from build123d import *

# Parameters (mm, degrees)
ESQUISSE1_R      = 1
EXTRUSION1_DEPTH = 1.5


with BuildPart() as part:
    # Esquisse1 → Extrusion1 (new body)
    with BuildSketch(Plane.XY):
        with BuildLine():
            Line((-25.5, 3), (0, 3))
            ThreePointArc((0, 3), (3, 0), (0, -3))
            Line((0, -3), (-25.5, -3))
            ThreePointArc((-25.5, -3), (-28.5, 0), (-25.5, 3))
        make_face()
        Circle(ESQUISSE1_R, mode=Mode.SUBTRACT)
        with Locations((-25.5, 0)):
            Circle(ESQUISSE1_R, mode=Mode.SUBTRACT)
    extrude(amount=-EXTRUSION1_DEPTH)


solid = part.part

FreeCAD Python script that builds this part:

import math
import FreeCAD as App
import Part
import Sketcher
from FreeCAD import Vector

doc = App.newDocument("Part")
body = doc.addObject("PartDesign::Body", "Body")

sketch1 = body.newObject("Sketcher::SketchObject", "Sketch")
sketch1.AttachmentSupport = (doc.getObject("XY_Plane"), [""])
sketch1.MapMode = "FlatFace"
sketch1.addGeometry(Part.LineSegment(Vector(0, 3, 0), Vector(-25.5, 3, 0)), False)
sketch1.addGeometry(Part.ArcOfCircle(Part.Circle(Vector(-25.5, 0, 0), Vector(0, 0, 1), 3), math.radians(90), math.radians(270)), False)
sketch1.addGeometry(Part.LineSegment(Vector(-25.5, -3, 0), Vector(0, -3, 0)), False)
sketch1.addGeometry(Part.ArcOfCircle(Part.Circle(Vector(0, 0, 0), Vector(0, 0, 1), 3), math.radians(-90), math.radians(90)), False)
sketch1.addGeometry(Part.Circle(Vector(0, 0, 0), Vector(0, 0, 1), 1), False)
sketch1.addGeometry(Part.Circle(Vector(-25.5, 0, 0), Vector(0, 0, 1), 1), False)
sketch1.addConstraint(Sketcher.Constraint("Tangent", 0, 2, 1, 1))
sketch1.addConstraint(Sketcher.Constraint("Tangent", 1, 2, 2, 1))
sketch1.addConstraint(Sketcher.Constraint("Tangent", 2, 2, 3, 1))
sketch1.addConstraint(Sketcher.Constraint("Tangent", 3, 2, 0, 1))
sketch1.addConstraint(Sketcher.Constraint("Horizontal", 0))
sketch1.addConstraint(Sketcher.Constraint("Horizontal", 2))
sketch1.addConstraint(Sketcher.Constraint("Coincident", 3, 3, -1, 1))
sketch1.addConstraint(Sketcher.Constraint("Coincident", 4, 3, -1, 1))
sketch1.addConstraint(Sketcher.Constraint("Coincident", 5, 3, 1, 3))
sketch1.addConstraint(Sketcher.Constraint("Equal", 4, 5))
sketch1.addConstraint(Sketcher.Constraint("Diameter", 4, 2.0))
sketch1.addConstraint(Sketcher.Constraint("Radius", 1, 3.0))
sketch1.addConstraint(Sketcher.Constraint("DistanceX", 0, 2, 0, 1, 25.5))
pad1 = body.newObject("PartDesign::Pad", "Pad")
pad1.Profile = sketch1
pad1.Length = 1.5
pad1.Reversed = True

doc.recompute()
